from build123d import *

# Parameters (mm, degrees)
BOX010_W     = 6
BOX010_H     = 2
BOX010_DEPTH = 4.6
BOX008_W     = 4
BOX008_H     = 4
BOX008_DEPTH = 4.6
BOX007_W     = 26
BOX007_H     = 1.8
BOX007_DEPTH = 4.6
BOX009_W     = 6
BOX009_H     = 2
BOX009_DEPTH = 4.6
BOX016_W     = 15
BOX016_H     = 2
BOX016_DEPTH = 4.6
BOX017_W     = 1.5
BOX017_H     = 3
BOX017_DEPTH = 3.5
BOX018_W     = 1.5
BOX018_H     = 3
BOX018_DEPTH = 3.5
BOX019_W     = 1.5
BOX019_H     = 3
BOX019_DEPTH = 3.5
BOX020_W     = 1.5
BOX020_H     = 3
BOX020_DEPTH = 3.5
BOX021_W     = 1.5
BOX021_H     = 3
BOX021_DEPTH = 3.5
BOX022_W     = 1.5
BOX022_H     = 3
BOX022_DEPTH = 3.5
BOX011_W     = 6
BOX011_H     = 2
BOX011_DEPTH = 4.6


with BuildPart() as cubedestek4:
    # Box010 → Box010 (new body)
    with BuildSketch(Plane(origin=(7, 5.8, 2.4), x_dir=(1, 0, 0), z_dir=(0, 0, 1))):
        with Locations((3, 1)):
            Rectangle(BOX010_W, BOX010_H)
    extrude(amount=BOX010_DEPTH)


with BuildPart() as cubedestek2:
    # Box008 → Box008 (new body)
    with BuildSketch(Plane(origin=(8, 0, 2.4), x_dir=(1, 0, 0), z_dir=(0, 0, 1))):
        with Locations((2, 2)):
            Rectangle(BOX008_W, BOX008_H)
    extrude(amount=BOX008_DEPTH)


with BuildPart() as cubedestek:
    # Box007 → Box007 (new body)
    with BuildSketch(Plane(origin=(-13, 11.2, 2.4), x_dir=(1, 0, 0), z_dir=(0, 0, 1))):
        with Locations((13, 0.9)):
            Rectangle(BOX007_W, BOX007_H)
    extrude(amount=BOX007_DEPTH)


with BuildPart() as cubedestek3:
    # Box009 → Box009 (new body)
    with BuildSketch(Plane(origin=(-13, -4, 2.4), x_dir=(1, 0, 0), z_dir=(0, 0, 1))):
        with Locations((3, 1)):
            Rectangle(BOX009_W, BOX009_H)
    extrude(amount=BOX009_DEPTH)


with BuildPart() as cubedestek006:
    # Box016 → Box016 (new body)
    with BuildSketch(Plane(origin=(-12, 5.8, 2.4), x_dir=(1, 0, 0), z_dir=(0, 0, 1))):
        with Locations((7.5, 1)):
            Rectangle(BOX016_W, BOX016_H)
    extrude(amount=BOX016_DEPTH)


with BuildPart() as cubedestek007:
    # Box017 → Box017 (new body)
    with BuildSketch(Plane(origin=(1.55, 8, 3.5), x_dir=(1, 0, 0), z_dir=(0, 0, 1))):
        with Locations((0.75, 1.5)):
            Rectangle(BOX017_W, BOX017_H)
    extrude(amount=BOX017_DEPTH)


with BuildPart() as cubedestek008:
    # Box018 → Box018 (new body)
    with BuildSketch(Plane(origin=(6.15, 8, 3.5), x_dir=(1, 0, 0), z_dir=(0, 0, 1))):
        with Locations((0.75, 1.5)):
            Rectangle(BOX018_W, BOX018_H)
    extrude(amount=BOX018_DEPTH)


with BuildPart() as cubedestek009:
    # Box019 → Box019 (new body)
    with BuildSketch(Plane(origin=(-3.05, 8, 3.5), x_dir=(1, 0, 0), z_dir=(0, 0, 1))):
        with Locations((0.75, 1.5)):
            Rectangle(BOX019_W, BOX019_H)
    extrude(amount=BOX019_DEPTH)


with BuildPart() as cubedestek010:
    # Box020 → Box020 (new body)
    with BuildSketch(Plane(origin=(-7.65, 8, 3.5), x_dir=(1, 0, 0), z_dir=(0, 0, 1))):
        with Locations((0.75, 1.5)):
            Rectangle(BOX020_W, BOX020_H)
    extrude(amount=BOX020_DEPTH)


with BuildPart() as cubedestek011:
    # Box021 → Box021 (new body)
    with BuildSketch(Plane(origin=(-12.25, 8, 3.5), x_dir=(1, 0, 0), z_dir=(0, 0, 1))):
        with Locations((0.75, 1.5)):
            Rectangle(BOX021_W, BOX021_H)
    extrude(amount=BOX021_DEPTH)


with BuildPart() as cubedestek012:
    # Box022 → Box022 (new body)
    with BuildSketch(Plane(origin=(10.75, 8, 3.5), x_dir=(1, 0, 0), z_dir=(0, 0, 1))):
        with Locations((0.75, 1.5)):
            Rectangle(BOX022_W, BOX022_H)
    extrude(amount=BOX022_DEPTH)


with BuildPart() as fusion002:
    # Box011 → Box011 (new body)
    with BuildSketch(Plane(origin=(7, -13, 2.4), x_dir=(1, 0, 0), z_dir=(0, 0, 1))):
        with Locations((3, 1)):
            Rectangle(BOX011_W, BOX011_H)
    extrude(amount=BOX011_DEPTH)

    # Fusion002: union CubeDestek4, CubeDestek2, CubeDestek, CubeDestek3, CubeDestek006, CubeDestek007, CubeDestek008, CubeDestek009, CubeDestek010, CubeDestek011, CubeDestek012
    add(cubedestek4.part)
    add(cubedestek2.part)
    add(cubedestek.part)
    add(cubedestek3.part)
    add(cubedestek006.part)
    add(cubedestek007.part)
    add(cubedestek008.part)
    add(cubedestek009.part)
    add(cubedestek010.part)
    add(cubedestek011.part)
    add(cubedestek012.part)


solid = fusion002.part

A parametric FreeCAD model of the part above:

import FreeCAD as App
import Part
import Sketcher
Q = App.Units.Quantity

doc = App.newDocument("Part")
body = doc.addObject("PartDesign::Body", "Body")

# Sketch on XY plane
sketch1 = body.newObject("Sketcher::SketchObject", "Sketch")
sketch1.AttachmentSupport = (doc.getObject("XY_Plane"), [""])
sketch1.MapMode = "FlatFace"
sketch1.AttachmentOffset = App.Placement(App.Vector(0, 0, 2.4), App.Rotation())
sketch1.addGeometry(Part.LineSegment(App.Vector(7, 7.8, 0), App.Vector(7, 5.8, 0)), False)
sketch1.addGeometry(Part.LineSegment(App.Vector(7, 5.8, 0), App.Vector(13, 5.8, 0)), False)
sketch1.addGeometry(Part.LineSegment(App.Vector(13, 5.8, 0), App.Vector(13, 7.8, 0)), False)
sketch1.addGeometry(Part.LineSegment(App.Vector(13, 7.8, 0), App.Vector(7, 7.8, 0)), False)
sketch1.addConstraint(Sketcher.Constraint("Coincident", 0, 2, 1, 1))
sketch1.addConstraint(Sketcher.Constraint("Coincident", 1, 2, 2, 1))
sketch1.addConstraint(Sketcher.Constraint("Coincident", 2, 2, 3, 1))
sketch1.addConstraint(Sketcher.Constraint("Coincident", 3, 2, 0, 1))
sketch1.addConstraint(Sketcher.Constraint("Vertical", 0))
sketch1.addConstraint(Sketcher.Constraint("Horizontal", 1))
sketch1.addConstraint(Sketcher.Constraint("Vertical", 2))
sketch1.addConstraint(Sketcher.Constraint("Horizontal", 3))
sketch1.addConstraint(Sketcher.Constraint("DistanceX", 1, 1, 1, 2, Q("6 mm")))
sketch1.addConstraint(Sketcher.Constraint("DistanceY", 0, 2, 0, 1, Q("2 mm")))
sketch1.addConstraint(Sketcher.Constraint("DistanceX", -1, 1, 0, 2, Q("7 mm")))
sketch1.addConstraint(Sketcher.Constraint("DistanceY", -1, 1, 0, 2, Q("5.8 mm")))
pad1 = body.newObject("PartDesign::Pad", "Pad")
pad1.Profile = sketch1
pad1.Length = 4.6
body2 = doc.addObject("PartDesign::Body", "Body001")

# Sketch on XY plane
sketch2 = body2.newObject("Sketcher::SketchObject", "Sketch001")
sketch2.AttachmentSupport = (doc.getObject("XY_Plane001"), [""])
sketch2.MapMode = "FlatFace"
sketch2.AttachmentOffset = App.Placement(App.Vector(0, 0, 2.4), App.Rotation())
sketch2.addGeometry(Part.LineSegment(App.Vector(8, 4, 0), App.Vector(8, 0, 0)), False)
sketch2.addGeometry(Part.LineSegment(App.Vector(8, 0, 0), App.Vector(12, 0, 0)), False)
sketch2.addGeometry(Part.LineSegment(App.Vector(12, 0, 0), App.Vector(12, 4, 0)), False)
sketch2.addGeometry(Part.LineSegment(App.Vector(12, 4, 0), App.Vector(8, 4, 0)), False)
sketch2.addConstraint(Sketcher.Constraint("Coincident", 0, 2, 1, 1))
sketch2.addConstraint(Sketcher.Constraint("Coincident", 1, 2, 2, 1))
sketch2.addConstraint(Sketcher.Constraint("Coincident", 2, 2, 3, 1))
sketch2.addConstraint(Sketcher.Constraint("Coincident", 3, 2, 0, 1))
sketch2.addConstraint(Sketcher.Constraint("Vertical", 0))
sketch2.addConstraint(Sketcher.Constraint("Horizontal", 1))
sketch2.addConstraint(Sketcher.Constraint("Vertical", 2))
sketch2.addConstraint(Sketcher.Constraint("Horizontal", 3))
sketch2.addConstraint(Sketcher.Constraint("PointOnObject", 0, 2, -1))
sketch2.addConstraint(Sketcher.Constraint("Equal", 3, 0))
sketch2.addConstraint(Sketcher.Constraint("DistanceX", 1, 1, 1, 2, Q("4 mm")))
sketch2.addConstraint(Sketcher.Constraint("DistanceX", -1, 1, 0, 2, Q("8 mm")))
pad2 = body2.newObject("PartDesign::Pad", "Pad001")
pad2.Profile = sketch2
pad2.Length = 4.6
body3 = doc.addObject("PartDesign::Body", "Body002")

# Sketch on XY plane
sketch3 = body3.newObject("Sketcher::SketchObject", "Sketch002")
sketch3.AttachmentSupport = (doc.getObject("XY_Plane002"), [""])
sketch3.MapMode = "FlatFace"
sketch3.AttachmentOffset = App.Placement(App.Vector(0, 0, 2.4), App.Rotation())
sketch3.addGeometry(Part.LineSegment(App.Vector(-13, 13, 0), App.Vector(-13, 11.2, 0)), False)
sketch3.addGeometry(Part.LineSegment(App.Vector(-13, 11.2, 0), App.Vector(13, 11.2, 0)), False)
sketch3.addGeometry(Part.LineSegment(App.Vector(13, 11.2, 0), App.Vector(13, 13, 0)), False)
sketch3.addGeometry(Part.LineSegment(App.Vector(13, 13, 0), App.Vector(-13, 13, 0)), False)
sketch3.addConstraint(Sketcher.Constraint("Coincident", 0, 2, 1, 1))
sketch3.addConstraint(Sketcher.Constraint("Coincident", 1, 2, 2, 1))
sketch3.addConstraint(Sketcher.Constraint("Coincident", 2, 2, 3, 1))
sketch3.addConstraint(Sketcher.Constraint("Coincident", 3, 2, 0, 1))
sketch3.addConstraint(Sketcher.Constraint("Vertical", 0))
sketch3.addConstraint(Sketcher.Constraint("Horizontal", 1))
sketch3.addConstraint(Sketcher.Constraint("Vertical", 2))
sketch3.addConstraint(Sketcher.Constraint("Horizontal", 3))
sketch3.addConstraint(Sketcher.Constraint("DistanceX", 1, 1, 1, 2, Q("26 mm")))
sketch3.addConstraint(Sketcher.Constraint("DistanceY", 0, 2, 0, 1, Q("1.8 mm")))
sketch3.addConstraint(Sketcher.Constraint("DistanceX", 0, 2, -1, 1, Q("13 mm")))
sketch3.addConstraint(Sketcher.Constraint("DistanceY", -1, 1, 2, 2, Q("13 mm")))
pad3 = body3.newObject("PartDesign::Pad", "Pad002")
pad3.Profile = sketch3
pad3.Length = 4.6
body4 = doc.addObject("PartDesign::Body", "Body003")

# Sketch on XY plane
sketch4 = body4.newObject("Sketcher::SketchObject", "Sketch003")
sketch4.AttachmentSupport = (doc.getObject("XY_Plane003"), [""])
sketch4.MapMode = "FlatFace"
sketch4.AttachmentOffset = App.Placement(App.Vector(0, 0, 2.4), App.Rotation())
sketch4.addGeometry(Part.LineSegment(App.Vector(-13, -2, 0), App.Vector(-13, -4, 0)), False)
sketch4.addGeometry(Part.LineSegment(App.Vector(-13, -4, 0), App.Vector(-7, -4, 0)), False)
sketch4.addGeometry(Part.LineSegment(App.Vector(-7, -4, 0), App.Vector(-7, -2, 0)), False)
sketch4.addGeometry(Part.LineSegment(App.Vector(-7, -2, 0), App.Vector(-13, -2, 0)), False)
sketch4.addConstraint(Sketcher.Constraint("Coincident", 0, 2, 1, 1))
sketch4.addConstraint(Sketcher.Constraint("Coincident", 1, 2, 2, 1))
sketch4.addConstraint(Sketcher.Constraint("Coincident", 2, 2, 3, 1))
sketch4.addConstraint(Sketcher.Constraint("Coincident", 3, 2, 0, 1))
sketch4.addConstraint(Sketcher.Constraint("Vertical", 0))
sketch4.addConstraint(Sketcher.Constraint("Horizontal", 1))
sketch4.addConstraint(Sketcher.Constraint("Vertical", 2))
sketch4.addConstraint(Sketcher.Constraint("Horizontal", 3))
sketch4.addConstraint(Sketcher.Constraint("DistanceX", 1, 1, 1, 2, Q("6 mm")))
sketch4.addConstraint(Sketcher.Constraint("DistanceY", 0, 2, 0, 1, Q("2 mm")))
sketch4.addConstraint(Sketcher.Constraint("DistanceX", 0, 2, -1, 1, Q("13 mm")))
sketch4.addConstraint(Sketcher.Constraint("DistanceY", 0, 2, -1, 1, Q("4 mm")))
pad4 = body4.newObject("PartDesign::Pad", "Pad003")
pad4.Profile = sketch4
pad4.Length = 4.6
body5 = doc.addObject("PartDesign::Body", "Body004")

# Sketch on XY plane
sketch5 = body5.newObject("Sketcher::SketchObject", "Sketch004")
sketch5.AttachmentSupport = (doc.getObject("XY_Plane004"), [""])
sketch5.MapMode = "FlatFace"
sketch5.AttachmentOffset = App.Placement(App.Vector(0, 0, 2.4), App.Rotation())
sketch5.addGeometry(Part.LineSegment(App.Vector(-12, 7.8, 0), App.Vector(-12, 5.8, 0)), False)
sketch5.addGeometry(Part.LineSegment(App.Vector(-12, 5.8, 0), App.Vector(3, 5.8, 0)), False)
sketch5.addGeometry(Part.LineSegment(App.Vector(3, 5.8, 0), App.Vector(3, 7.8, 0)), False)
sketch5.addGeometry(Part.LineSegment(App.Vector(3, 7.8, 0), App.Vector(-12, 7.8, 0)), False)
sketch5.addConstraint(Sketcher.Constraint("Coincident", 0, 2, 1, 1))
sketch5.addConstraint(Sketcher.Constraint("Coincident", 1, 2, 2, 1))
sketch5.addConstraint(Sketcher.Constraint("Coincident", 2, 2, 3, 1))
sketch5.addConstraint(Sketcher.Constraint("Coincident", 3, 2, 0, 1))
sketch5.addConstraint(Sketcher.Constraint("Vertical", 0))
sketch5.addConstraint(Sketcher.Constraint("Horizontal", 1))
sketch5.addConstraint(Sketcher.Constraint("Vertical", 2))
sketch5.addConstraint(Sketcher.Constraint("Horizontal", 3))
sketch5.addConstraint(Sketcher.Constraint("DistanceX", 1, 1, 1, 2, Q("15 mm")))
sketch5.addConstraint(Sketcher.Constraint("DistanceY", 0, 2, 0, 1, Q("2 mm")))
sketch5.addConstraint(Sketcher.Constraint("DistanceX", 0, 2, -1, 1, Q("12 mm")))
sketch5.addConstraint(Sketcher.Constraint("DistanceY", -1, 1, 0, 2, Q("5.8 mm")))
pad5 = body5.newObject("PartDesign::Pad", "Pad004")
pad5.Profile = sketch5
pad5.Length = 4.6
body6 = doc.addObject("PartDesign::Body", "Body005")

# Sketch on XY plane
sketch6 = body6.newObject("Sketcher::SketchObject", "Sketch005")
sketch6.AttachmentSupport = (doc.getObject("XY_Plane005"), [""])
sketch6.MapMode = "FlatFace"
sketch6.AttachmentOffset = App.Placement(App.Vector(0, 0, 3.5), App.Rotation())
sketch6.addGeometry(Part.LineSegment(App.Vector(1.6, 11, 0), App.Vector(1.6, 8, 0)), False)
sketch6.addGeometry(Part.LineSegment(App.Vector(1.6, 8, 0), App.Vector(3, 8, 0)), False)
sketch6.addGeometry(Part.LineSegment(App.Vector(3, 8, 0), App.Vector(3, 11, 0)), False)
sketch6.addGeometry(Part.LineSegment(App.Vector(3, 11, 0), App.Vector(1.6, 11, 0)), False)
sketch6.addConstraint(Sketcher.Constraint("Coincident", 0, 2, 1, 1))
sketch6.addConstraint(Sketcher.Constraint("Coincident", 1, 2, 2, 1))
sketch6.addConstraint(Sketcher.Constraint("Coincident", 2, 2, 3, 1))
sketch6.addConstraint(Sketcher.Constraint("Coincident", 3, 2, 0, 1))
sketch6.addConstraint(Sketcher.Constraint("Vertical", 0))
sketch6.addConstraint(Sketcher.Constraint("Horizontal", 1))
sketch6.addConstraint(Sketcher.Constraint("Vertical", 2))
sketch6.addConstraint(Sketcher.Constraint("Horizontal", 3))
sketch6.addConstraint(Sketcher.Constraint("DistanceY", 0, 2, 0, 1, Q("3 mm")))
sketch6.addConstraint(Sketcher.Constraint("DistanceX", 1, 1, 1, 2, Q("1.5 mm")))
sketch6.addConstraint(Sketcher.Constraint("DistanceY", -1, 1, 0, 2, Q("8 mm")))
sketch6.addConstraint(Sketcher.Constraint("DistanceX", -1, 1, 0, 2, Q("1.55 mm")))
pad6 = body6.newObject("PartDesign::Pad", "Pad005")
pad6.Profile = sketch6
pad6.Length = 3.5
body7 = doc.addObject("PartDesign::Body", "Body006")

# Sketch on XY plane
sketch7 = body7.newObject("Sketcher::SketchObject", "Sketch006")
sketch7.AttachmentSupport = (doc.getObject("XY_Plane006"), [""])
sketch7.MapMode = "FlatFace"
sketch7.AttachmentOffset = App.Placement(App.Vector(0, 0, 3.5), App.Rotation())
sketch7.addGeometry(Part.LineSegment(App.Vector(6.2, 11, 0), App.Vector(6.2, 8, 0)), False)
sketch7.addGeometry(Part.LineSegment(App.Vector(6.2, 8, 0), App.Vector(7.7, 8, 0)), False)
sketch7.addGeometry(Part.LineSegment(App.Vector(7.7, 8, 0), App.Vector(7.7, 11, 0)), False)
sketch7.addGeometry(Part.LineSegment(App.Vector(7.7, 11, 0), App.Vector(6.2, 11, 0)), False)
sketch7.addConstraint(Sketcher.Constraint("Coincident", 0, 2, 1, 1))
sketch7.addConstraint(Sketcher.Constraint("Coincident", 1, 2, 2, 1))
sketch7.addConstraint(Sketcher.Constraint("Coincident", 2, 2, 3, 1))
sketch7.addConstraint(Sketcher.Constraint("Coincident", 3, 2, 0, 1))
sketch7.addConstraint(Sketcher.Constraint("Vertical", 0))
sketch7.addConstraint(Sketcher.Constraint("Horizontal", 1))
sketch7.addConstraint(Sketcher.Constraint("Vertical", 2))
sketch7.addConstraint(Sketcher.Constraint("Horizontal", 3))
sketch7.addConstraint(Sketcher.Constraint("DistanceY", 0, 2, 0, 1, Q("3 mm")))
sketch7.addConstraint(Sketcher.Constraint("DistanceX", 1, 1, 1, 2, Q("1.5 mm")))
sketch7.addConstraint(Sketcher.Constraint("DistanceY", -1, 1, 0, 2, Q("8 mm")))
sketch7.addConstraint(Sketcher.Constraint("DistanceX", -1, 1, 0, 2, Q("6.15 mm")))
pad7 = body7.newObject("PartDesign::Pad", "Pad006")
pad7.Profile = sketch7
pad7.Length = 3.5
body8 = doc.addObject("PartDesign::Body", "Body007")

# Sketch on XY plane
sketch8 = body8.newObject("Sketcher::SketchObject", "Sketch007")
sketch8.AttachmentSupport = (doc.getObject("XY_Plane007"), [""])
sketch8.MapMode = "FlatFace"
sketch8.AttachmentOffset = App.Placement(App.Vector(0, 0, 3.5), App.Rotation())
sketch8.addGeometry(Part.LineSegment(App.Vector(-3, 11, 0), App.Vector(-3, 8, 0)), False)
sketch8.addGeometry(Part.LineSegment(App.Vector(-3, 8, 0), App.Vector(-1.6, 8, 0)), False)
sketch8.addGeometry(Part.LineSegment(App.Vector(-1.6, 8, 0), App.Vector(-1.6, 11, 0)), False)
sketch8.addGeometry(Part.LineSegment(App.Vector(-1.6, 11, 0), App.Vector(-3, 11, 0)), False)
sketch8.addConstraint(Sketcher.Constraint("Coincident", 0, 2, 1, 1))
sketch8.addConstraint(Sketcher.Constraint("Coincident", 1, 2, 2, 1))
sketch8.addConstraint(Sketcher.Constraint("Coincident", 2, 2, 3, 1))
sketch8.addConstraint(Sketcher.Constraint("Coincident", 3, 2, 0, 1))
sketch8.addConstraint(Sketcher.Constraint("Vertical", 0))
sketch8.addConstraint(Sketcher.Constraint("Horizontal", 1))
sketch8.addConstraint(Sketcher.Constraint("Vertical", 2))
sketch8.addConstraint(Sketcher.Constraint("Horizontal", 3))
sketch8.addConstraint(Sketcher.Constraint("DistanceY", 0, 2, 0, 1, Q("3 mm")))
sketch8.addConstraint(Sketcher.Constraint("DistanceX", 1, 1, 1, 2, Q("1.5 mm")))
sketch8.addConstraint(Sketcher.Constraint("DistanceY", -1, 1, 0, 2, Q("8 mm")))
sketch8.addConstraint(Sketcher.Constraint("DistanceX", 0, 2, -1, 1, Q("3.05 mm")))
pad8 = body8.newObject("PartDesign::Pad", "Pad007")
pad8.Profile = sketch8
pad8.Length = 3.5
body9 = doc.addObject("PartDesign::Body", "Body008")

# Sketch on XY plane
sketch9 = body9.newObject("Sketcher::SketchObject", "Sketch008")
sketch9.AttachmentSupport = (doc.getObject("XY_Plane008"), [""])
sketch9.MapMode = "FlatFace"
sketch9.AttachmentOffset = App.Placement(App.Vector(0, 0, 3.5), App.Rotation())
sketch9.addGeometry(Part.LineSegment(App.Vector(-7.7, 11, 0), App.Vector(-7.7, 8, 0)), False)
sketch9.addGeometry(Part.LineSegment(App.Vector(-7.7, 8, 0), App.Vector(-6.2, 8, 0)), False)
sketch9.addGeometry(Part.LineSegment(App.Vector(-6.2, 8, 0), App.Vector(-6.2, 11, 0)), False)
sketch9.addGeometry(Part.LineSegment(App.Vector(-6.2, 11, 0), App.Vector(-7.7, 11, 0)), False)
sketch9.addConstraint(Sketcher.Constraint("Coincident", 0, 2, 1, 1))
sketch9.addConstraint(Sketcher.Constraint("Coincident", 1, 2, 2, 1))
sketch9.addConstraint(Sketcher.Constraint("Coincident", 2, 2, 3, 1))
sketch9.addConstraint(Sketcher.Constraint("Coincident", 3, 2, 0, 1))
sketch9.addConstraint(Sketcher.Constraint("Vertical", 0))
sketch9.addConstraint(Sketcher.Constraint("Horizontal", 1))
sketch9.addConstraint(Sketcher.Constraint("Vertical", 2))
sketch9.addConstraint(Sketcher.Constraint("Horizontal", 3))
sketch9.addConstraint(Sketcher.Constraint("DistanceY", 0, 2, 0, 1, Q("3 mm")))
sketch9.addConstraint(Sketcher.Constraint("DistanceX", 1, 1, 1, 2, Q("1.5 mm")))
sketch9.addConstraint(Sketcher.Constraint("DistanceY", -1, 1, 0, 2, Q("8 mm")))
sketch9.addConstraint(Sketcher.Constraint("DistanceX", 0, 2, -1, 1, Q("7.65 mm")))
pad9 = body9.newObject("PartDesign::Pad", "Pad008")
pad9.Profile = sketch9
pad9.Length = 3.5
body10 = doc.addObject("PartDesign::Body", "Body009")

# Sketch on XY plane
sketch10 = body10.newObject("Sketcher::SketchObject", "Sketch009")
sketch10.AttachmentSupport = (doc.getObject("XY_Plane009"), [""])
sketch10.MapMode = "FlatFace"
sketch10.AttachmentOffset = App.Placement(App.Vector(0, 0, 3.5), App.Rotation())
sketch10.addGeometry(Part.LineSegment(App.Vector(-12.2, 11, 0), App.Vector(-12.2, 8, 0)), False)
sketch10.addGeometry(Part.LineSegment(App.Vector(-12.2, 8, 0), App.Vector(-10.8, 8, 0)), False)
sketch10.addGeometry(Part.LineSegment(App.Vector(-10.8, 8, 0), App.Vector(-10.8, 11, 0)), False)
sketch10.addGeometry(Part.LineSegment(App.Vector(-10.8, 11, 0), App.Vector(-12.2, 11, 0)), False)
sketch10.addConstraint(Sketcher.Constraint("Coincident", 0, 2, 1, 1))
sketch10.addConstraint(Sketcher.Constraint("Coincident", 1, 2, 2, 1))
sketch10.addConstraint(Sketcher.Constraint("Coincident", 2, 2, 3, 1))
sketch10.addConstraint(Sketcher.Constraint("Coincident", 3, 2, 0, 1))
sketch10.addConstraint(Sketcher.Constraint("Vertical", 0))
sketch10.addConstraint(Sketcher.Constraint("Horizontal", 1))
sketch10.addConstraint(Sketcher.Constraint("Vertical", 2))
sketch10.addConstraint(Sketcher.Constraint("Horizontal", 3))
sketch10.addConstraint(Sketcher.Constraint("DistanceY", 0, 2, 0, 1, Q("3 mm")))
sketch10.addConstraint(Sketcher.Constraint("DistanceX", 1, 1, 1, 2, Q("1.5 mm")))
sketch10.addConstraint(Sketcher.Constraint("DistanceY", -1, 1, 0, 2, Q("8 mm")))
sketch10.addConstraint(Sketcher.Constraint("DistanceX", 0, 2, -1, 1, Q("12.25 mm")))
pad10 = body10.newObject("PartDesign::Pad", "Pad009")
pad10.Profile = sketch10
pad10.Length = 3.5
body11 = doc.addObject("PartDesign::Body", "Body010")

# Sketch on XY plane
sketch11 = body11.newObject("Sketcher::SketchObject", "Sketch010")
sketch11.AttachmentSupport = (doc.getObject("XY_Plane010"), [""])
sketch11.MapMode = "FlatFace"
sketch11.AttachmentOffset = App.Placement(App.Vector(0, 0, 3.5), App.Rotation())
sketch11.addGeometry(Part.LineSegment(App.Vector(10.8, 11, 0), App.Vector(10.8, 8, 0)), False)
sketch11.addGeometry(Part.LineSegment(App.Vector(10.8, 8, 0), App.Vector(12.2, 8, 0)), False)
sketch11.addGeometry(Part.LineSegment(App.Vector(12.2, 8, 0), App.Vector(12.2, 11, 0)), False)
sketch11.addGeometry(Part.LineSegment(App.Vector(12.2, 11, 0), App.Vector(10.8, 11, 0)), False)
sketch11.addConstraint(Sketcher.Constraint("Coincident", 0, 2, 1, 1))
sketch11.addConstraint(Sketcher.Constraint("Coincident", 1, 2, 2, 1))
sketch11.addConstraint(Sketcher.Constraint("Coincident", 2, 2, 3, 1))
sketch11.addConstraint(Sketcher.Constraint("Coincident", 3, 2, 0, 1))
sketch11.addConstraint(Sketcher.Constraint("Vertical", 0))
sketch11.addConstraint(Sketcher.Constraint("Horizontal", 1))
sketch11.addConstraint(Sketcher.Constraint("Vertical", 2))
sketch11.addConstraint(Sketcher.Constraint("Horizontal", 3))
sketch11.addConstraint(Sketcher.Constraint("DistanceY", 0, 2, 0, 1, Q("3 mm")))
sketch11.addConstraint(Sketcher.Constraint("DistanceX", 1, 1, 1, 2, Q("1.5 mm")))
sketch11.addConstraint(Sketcher.Constraint("DistanceY", -1, 1, 0, 2, Q("8 mm")))
sketch11.addConstraint(Sketcher.Constraint("DistanceX", -1, 1, 0, 2, Q("10.75 mm")))
pad11 = body11.newObject("PartDesign::Pad", "Pad010")
pad11.Profile = sketch11
pad11.Length = 3.5
body12 = doc.addObject("PartDesign::Body", "Body011")
body12.AllowCompound = True

# Sketch on XY plane
sketch12 = body12.newObject("Sketcher::SketchObject", "Sketch011")
sketch12.AttachmentSupport = (doc.getObject("XY_Plane011"), [""])
sketch12.MapMode = "FlatFace"
sketch12.AttachmentOffset = App.Placement(App.Vector(0, 0, 2.4), App.Rotation())
sketch12.addGeometry(Part.LineSegment(App.Vector(7, -11, 0), App.Vector(7, -13, 0)), False)
sketch12.addGeometry(Part.LineSegment(App.Vector(7, -13, 0), App.Vector(13, -13, 0)), False)
sketch12.addGeometry(Part.LineSegment(App.Vector(13, -13, 0), App.Vector(13, -11, 0)), False)
sketch12.addGeometry(Part.LineSegment(App.Vector(13, -11, 0), App.Vector(7, -11, 0)), False)
sketch12.addConstraint(Sketcher.Constraint("Coincident", 0, 2, 1, 1))
sketch12.addConstraint(Sketcher.Constraint("Coincident", 1, 2, 2, 1))
sketch12.addConstraint(Sketcher.Constraint("Coincident", 2, 2, 3, 1))
sketch12.addConstraint(Sketcher.Constraint("Coincident", 3, 2, 0, 1))
sketch12.addConstraint(Sketcher.Constraint("Vertical", 0))
sketch12.addConstraint(Sketcher.Constraint("Horizontal", 1))
sketch12.addConstraint(Sketcher.Constraint("Vertical", 2))
sketch12.addConstraint(Sketcher.Constraint("Horizontal", 3))
sketch12.addConstraint(Sketcher.Constraint("DistanceX", 1, 1, 1, 2, Q("6 mm")))
sketch12.addConstraint(Sketcher.Constraint("DistanceY", 0, 2, 0, 1, Q("2 mm")))
sketch12.addConstraint(Sketcher.Constraint("DistanceX", -1, 1, 0, 2, Q("7 mm")))
sketch12.addConstraint(Sketcher.Constraint("DistanceY", 0, 2, -1, 1, Q("13 mm")))
pad12 = body12.newObject("PartDesign::Pad", "Pad011")
pad12.Profile = sketch12
pad12.Length = 4.6
doc.recompute()

boolean = body12.newObject("PartDesign::Boolean", "Boolean")
boolean.Type = "Fuse"
boolean.addObjects([body])
doc.recompute()

boolean2 = body12.newObject("PartDesign::Boolean", "Boolean001")
boolean2.Type = "Fuse"
boolean2.addObjects([body2])
doc.recompute()

boolean3 = body12.newObject("PartDesign::Boolean", "Boolean002")
boolean3.Type = "Fuse"
boolean3.addObjects([body3])
doc.recompute()

boolean4 = body12.newObject("PartDesign::Boolean", "Boolean003")
boolean4.Type = "Fuse"
boolean4.addObjects([body4])
doc.recompute()

boolean5 = body12.newObject("PartDesign::Boolean", "Boolean004")
boolean5.Type = "Fuse"
boolean5.addObjects([body5])
doc.recompute()

boolean6 = body12.newObject("PartDesign::Boolean", "Boolean005")
boolean6.Type = "Fuse"
boolean6.addObjects([body6])
doc.recompute()

boolean7 = body12.newObject("PartDesign::Boolean", "Boolean006")
boolean7.Type = "Fuse"
boolean7.addObjects([body7])
doc.recompute()

boolean8 = body12.newObject("PartDesign::Boolean", "Boolean007")
boolean8.Type = "Fuse"
boolean8.addObjects([body8])
doc.recompute()

boolean9 = body12.newObject("PartDesign::Boolean", "Boolean008")
boolean9.Type = "Fuse"
boolean9.addObjects([body9])
doc.recompute()

boolean10 = body12.newObject("PartDesign::Boolean", "Boolean009")
boolean10.Type = "Fuse"
boolean10.addObjects([body10])
doc.recompute()

boolean11 = body12.newObject("PartDesign::Boolean", "Boolean010")
boolean11.Type = "Fuse"
boolean11.addObjects([body11])

doc.recompute()
